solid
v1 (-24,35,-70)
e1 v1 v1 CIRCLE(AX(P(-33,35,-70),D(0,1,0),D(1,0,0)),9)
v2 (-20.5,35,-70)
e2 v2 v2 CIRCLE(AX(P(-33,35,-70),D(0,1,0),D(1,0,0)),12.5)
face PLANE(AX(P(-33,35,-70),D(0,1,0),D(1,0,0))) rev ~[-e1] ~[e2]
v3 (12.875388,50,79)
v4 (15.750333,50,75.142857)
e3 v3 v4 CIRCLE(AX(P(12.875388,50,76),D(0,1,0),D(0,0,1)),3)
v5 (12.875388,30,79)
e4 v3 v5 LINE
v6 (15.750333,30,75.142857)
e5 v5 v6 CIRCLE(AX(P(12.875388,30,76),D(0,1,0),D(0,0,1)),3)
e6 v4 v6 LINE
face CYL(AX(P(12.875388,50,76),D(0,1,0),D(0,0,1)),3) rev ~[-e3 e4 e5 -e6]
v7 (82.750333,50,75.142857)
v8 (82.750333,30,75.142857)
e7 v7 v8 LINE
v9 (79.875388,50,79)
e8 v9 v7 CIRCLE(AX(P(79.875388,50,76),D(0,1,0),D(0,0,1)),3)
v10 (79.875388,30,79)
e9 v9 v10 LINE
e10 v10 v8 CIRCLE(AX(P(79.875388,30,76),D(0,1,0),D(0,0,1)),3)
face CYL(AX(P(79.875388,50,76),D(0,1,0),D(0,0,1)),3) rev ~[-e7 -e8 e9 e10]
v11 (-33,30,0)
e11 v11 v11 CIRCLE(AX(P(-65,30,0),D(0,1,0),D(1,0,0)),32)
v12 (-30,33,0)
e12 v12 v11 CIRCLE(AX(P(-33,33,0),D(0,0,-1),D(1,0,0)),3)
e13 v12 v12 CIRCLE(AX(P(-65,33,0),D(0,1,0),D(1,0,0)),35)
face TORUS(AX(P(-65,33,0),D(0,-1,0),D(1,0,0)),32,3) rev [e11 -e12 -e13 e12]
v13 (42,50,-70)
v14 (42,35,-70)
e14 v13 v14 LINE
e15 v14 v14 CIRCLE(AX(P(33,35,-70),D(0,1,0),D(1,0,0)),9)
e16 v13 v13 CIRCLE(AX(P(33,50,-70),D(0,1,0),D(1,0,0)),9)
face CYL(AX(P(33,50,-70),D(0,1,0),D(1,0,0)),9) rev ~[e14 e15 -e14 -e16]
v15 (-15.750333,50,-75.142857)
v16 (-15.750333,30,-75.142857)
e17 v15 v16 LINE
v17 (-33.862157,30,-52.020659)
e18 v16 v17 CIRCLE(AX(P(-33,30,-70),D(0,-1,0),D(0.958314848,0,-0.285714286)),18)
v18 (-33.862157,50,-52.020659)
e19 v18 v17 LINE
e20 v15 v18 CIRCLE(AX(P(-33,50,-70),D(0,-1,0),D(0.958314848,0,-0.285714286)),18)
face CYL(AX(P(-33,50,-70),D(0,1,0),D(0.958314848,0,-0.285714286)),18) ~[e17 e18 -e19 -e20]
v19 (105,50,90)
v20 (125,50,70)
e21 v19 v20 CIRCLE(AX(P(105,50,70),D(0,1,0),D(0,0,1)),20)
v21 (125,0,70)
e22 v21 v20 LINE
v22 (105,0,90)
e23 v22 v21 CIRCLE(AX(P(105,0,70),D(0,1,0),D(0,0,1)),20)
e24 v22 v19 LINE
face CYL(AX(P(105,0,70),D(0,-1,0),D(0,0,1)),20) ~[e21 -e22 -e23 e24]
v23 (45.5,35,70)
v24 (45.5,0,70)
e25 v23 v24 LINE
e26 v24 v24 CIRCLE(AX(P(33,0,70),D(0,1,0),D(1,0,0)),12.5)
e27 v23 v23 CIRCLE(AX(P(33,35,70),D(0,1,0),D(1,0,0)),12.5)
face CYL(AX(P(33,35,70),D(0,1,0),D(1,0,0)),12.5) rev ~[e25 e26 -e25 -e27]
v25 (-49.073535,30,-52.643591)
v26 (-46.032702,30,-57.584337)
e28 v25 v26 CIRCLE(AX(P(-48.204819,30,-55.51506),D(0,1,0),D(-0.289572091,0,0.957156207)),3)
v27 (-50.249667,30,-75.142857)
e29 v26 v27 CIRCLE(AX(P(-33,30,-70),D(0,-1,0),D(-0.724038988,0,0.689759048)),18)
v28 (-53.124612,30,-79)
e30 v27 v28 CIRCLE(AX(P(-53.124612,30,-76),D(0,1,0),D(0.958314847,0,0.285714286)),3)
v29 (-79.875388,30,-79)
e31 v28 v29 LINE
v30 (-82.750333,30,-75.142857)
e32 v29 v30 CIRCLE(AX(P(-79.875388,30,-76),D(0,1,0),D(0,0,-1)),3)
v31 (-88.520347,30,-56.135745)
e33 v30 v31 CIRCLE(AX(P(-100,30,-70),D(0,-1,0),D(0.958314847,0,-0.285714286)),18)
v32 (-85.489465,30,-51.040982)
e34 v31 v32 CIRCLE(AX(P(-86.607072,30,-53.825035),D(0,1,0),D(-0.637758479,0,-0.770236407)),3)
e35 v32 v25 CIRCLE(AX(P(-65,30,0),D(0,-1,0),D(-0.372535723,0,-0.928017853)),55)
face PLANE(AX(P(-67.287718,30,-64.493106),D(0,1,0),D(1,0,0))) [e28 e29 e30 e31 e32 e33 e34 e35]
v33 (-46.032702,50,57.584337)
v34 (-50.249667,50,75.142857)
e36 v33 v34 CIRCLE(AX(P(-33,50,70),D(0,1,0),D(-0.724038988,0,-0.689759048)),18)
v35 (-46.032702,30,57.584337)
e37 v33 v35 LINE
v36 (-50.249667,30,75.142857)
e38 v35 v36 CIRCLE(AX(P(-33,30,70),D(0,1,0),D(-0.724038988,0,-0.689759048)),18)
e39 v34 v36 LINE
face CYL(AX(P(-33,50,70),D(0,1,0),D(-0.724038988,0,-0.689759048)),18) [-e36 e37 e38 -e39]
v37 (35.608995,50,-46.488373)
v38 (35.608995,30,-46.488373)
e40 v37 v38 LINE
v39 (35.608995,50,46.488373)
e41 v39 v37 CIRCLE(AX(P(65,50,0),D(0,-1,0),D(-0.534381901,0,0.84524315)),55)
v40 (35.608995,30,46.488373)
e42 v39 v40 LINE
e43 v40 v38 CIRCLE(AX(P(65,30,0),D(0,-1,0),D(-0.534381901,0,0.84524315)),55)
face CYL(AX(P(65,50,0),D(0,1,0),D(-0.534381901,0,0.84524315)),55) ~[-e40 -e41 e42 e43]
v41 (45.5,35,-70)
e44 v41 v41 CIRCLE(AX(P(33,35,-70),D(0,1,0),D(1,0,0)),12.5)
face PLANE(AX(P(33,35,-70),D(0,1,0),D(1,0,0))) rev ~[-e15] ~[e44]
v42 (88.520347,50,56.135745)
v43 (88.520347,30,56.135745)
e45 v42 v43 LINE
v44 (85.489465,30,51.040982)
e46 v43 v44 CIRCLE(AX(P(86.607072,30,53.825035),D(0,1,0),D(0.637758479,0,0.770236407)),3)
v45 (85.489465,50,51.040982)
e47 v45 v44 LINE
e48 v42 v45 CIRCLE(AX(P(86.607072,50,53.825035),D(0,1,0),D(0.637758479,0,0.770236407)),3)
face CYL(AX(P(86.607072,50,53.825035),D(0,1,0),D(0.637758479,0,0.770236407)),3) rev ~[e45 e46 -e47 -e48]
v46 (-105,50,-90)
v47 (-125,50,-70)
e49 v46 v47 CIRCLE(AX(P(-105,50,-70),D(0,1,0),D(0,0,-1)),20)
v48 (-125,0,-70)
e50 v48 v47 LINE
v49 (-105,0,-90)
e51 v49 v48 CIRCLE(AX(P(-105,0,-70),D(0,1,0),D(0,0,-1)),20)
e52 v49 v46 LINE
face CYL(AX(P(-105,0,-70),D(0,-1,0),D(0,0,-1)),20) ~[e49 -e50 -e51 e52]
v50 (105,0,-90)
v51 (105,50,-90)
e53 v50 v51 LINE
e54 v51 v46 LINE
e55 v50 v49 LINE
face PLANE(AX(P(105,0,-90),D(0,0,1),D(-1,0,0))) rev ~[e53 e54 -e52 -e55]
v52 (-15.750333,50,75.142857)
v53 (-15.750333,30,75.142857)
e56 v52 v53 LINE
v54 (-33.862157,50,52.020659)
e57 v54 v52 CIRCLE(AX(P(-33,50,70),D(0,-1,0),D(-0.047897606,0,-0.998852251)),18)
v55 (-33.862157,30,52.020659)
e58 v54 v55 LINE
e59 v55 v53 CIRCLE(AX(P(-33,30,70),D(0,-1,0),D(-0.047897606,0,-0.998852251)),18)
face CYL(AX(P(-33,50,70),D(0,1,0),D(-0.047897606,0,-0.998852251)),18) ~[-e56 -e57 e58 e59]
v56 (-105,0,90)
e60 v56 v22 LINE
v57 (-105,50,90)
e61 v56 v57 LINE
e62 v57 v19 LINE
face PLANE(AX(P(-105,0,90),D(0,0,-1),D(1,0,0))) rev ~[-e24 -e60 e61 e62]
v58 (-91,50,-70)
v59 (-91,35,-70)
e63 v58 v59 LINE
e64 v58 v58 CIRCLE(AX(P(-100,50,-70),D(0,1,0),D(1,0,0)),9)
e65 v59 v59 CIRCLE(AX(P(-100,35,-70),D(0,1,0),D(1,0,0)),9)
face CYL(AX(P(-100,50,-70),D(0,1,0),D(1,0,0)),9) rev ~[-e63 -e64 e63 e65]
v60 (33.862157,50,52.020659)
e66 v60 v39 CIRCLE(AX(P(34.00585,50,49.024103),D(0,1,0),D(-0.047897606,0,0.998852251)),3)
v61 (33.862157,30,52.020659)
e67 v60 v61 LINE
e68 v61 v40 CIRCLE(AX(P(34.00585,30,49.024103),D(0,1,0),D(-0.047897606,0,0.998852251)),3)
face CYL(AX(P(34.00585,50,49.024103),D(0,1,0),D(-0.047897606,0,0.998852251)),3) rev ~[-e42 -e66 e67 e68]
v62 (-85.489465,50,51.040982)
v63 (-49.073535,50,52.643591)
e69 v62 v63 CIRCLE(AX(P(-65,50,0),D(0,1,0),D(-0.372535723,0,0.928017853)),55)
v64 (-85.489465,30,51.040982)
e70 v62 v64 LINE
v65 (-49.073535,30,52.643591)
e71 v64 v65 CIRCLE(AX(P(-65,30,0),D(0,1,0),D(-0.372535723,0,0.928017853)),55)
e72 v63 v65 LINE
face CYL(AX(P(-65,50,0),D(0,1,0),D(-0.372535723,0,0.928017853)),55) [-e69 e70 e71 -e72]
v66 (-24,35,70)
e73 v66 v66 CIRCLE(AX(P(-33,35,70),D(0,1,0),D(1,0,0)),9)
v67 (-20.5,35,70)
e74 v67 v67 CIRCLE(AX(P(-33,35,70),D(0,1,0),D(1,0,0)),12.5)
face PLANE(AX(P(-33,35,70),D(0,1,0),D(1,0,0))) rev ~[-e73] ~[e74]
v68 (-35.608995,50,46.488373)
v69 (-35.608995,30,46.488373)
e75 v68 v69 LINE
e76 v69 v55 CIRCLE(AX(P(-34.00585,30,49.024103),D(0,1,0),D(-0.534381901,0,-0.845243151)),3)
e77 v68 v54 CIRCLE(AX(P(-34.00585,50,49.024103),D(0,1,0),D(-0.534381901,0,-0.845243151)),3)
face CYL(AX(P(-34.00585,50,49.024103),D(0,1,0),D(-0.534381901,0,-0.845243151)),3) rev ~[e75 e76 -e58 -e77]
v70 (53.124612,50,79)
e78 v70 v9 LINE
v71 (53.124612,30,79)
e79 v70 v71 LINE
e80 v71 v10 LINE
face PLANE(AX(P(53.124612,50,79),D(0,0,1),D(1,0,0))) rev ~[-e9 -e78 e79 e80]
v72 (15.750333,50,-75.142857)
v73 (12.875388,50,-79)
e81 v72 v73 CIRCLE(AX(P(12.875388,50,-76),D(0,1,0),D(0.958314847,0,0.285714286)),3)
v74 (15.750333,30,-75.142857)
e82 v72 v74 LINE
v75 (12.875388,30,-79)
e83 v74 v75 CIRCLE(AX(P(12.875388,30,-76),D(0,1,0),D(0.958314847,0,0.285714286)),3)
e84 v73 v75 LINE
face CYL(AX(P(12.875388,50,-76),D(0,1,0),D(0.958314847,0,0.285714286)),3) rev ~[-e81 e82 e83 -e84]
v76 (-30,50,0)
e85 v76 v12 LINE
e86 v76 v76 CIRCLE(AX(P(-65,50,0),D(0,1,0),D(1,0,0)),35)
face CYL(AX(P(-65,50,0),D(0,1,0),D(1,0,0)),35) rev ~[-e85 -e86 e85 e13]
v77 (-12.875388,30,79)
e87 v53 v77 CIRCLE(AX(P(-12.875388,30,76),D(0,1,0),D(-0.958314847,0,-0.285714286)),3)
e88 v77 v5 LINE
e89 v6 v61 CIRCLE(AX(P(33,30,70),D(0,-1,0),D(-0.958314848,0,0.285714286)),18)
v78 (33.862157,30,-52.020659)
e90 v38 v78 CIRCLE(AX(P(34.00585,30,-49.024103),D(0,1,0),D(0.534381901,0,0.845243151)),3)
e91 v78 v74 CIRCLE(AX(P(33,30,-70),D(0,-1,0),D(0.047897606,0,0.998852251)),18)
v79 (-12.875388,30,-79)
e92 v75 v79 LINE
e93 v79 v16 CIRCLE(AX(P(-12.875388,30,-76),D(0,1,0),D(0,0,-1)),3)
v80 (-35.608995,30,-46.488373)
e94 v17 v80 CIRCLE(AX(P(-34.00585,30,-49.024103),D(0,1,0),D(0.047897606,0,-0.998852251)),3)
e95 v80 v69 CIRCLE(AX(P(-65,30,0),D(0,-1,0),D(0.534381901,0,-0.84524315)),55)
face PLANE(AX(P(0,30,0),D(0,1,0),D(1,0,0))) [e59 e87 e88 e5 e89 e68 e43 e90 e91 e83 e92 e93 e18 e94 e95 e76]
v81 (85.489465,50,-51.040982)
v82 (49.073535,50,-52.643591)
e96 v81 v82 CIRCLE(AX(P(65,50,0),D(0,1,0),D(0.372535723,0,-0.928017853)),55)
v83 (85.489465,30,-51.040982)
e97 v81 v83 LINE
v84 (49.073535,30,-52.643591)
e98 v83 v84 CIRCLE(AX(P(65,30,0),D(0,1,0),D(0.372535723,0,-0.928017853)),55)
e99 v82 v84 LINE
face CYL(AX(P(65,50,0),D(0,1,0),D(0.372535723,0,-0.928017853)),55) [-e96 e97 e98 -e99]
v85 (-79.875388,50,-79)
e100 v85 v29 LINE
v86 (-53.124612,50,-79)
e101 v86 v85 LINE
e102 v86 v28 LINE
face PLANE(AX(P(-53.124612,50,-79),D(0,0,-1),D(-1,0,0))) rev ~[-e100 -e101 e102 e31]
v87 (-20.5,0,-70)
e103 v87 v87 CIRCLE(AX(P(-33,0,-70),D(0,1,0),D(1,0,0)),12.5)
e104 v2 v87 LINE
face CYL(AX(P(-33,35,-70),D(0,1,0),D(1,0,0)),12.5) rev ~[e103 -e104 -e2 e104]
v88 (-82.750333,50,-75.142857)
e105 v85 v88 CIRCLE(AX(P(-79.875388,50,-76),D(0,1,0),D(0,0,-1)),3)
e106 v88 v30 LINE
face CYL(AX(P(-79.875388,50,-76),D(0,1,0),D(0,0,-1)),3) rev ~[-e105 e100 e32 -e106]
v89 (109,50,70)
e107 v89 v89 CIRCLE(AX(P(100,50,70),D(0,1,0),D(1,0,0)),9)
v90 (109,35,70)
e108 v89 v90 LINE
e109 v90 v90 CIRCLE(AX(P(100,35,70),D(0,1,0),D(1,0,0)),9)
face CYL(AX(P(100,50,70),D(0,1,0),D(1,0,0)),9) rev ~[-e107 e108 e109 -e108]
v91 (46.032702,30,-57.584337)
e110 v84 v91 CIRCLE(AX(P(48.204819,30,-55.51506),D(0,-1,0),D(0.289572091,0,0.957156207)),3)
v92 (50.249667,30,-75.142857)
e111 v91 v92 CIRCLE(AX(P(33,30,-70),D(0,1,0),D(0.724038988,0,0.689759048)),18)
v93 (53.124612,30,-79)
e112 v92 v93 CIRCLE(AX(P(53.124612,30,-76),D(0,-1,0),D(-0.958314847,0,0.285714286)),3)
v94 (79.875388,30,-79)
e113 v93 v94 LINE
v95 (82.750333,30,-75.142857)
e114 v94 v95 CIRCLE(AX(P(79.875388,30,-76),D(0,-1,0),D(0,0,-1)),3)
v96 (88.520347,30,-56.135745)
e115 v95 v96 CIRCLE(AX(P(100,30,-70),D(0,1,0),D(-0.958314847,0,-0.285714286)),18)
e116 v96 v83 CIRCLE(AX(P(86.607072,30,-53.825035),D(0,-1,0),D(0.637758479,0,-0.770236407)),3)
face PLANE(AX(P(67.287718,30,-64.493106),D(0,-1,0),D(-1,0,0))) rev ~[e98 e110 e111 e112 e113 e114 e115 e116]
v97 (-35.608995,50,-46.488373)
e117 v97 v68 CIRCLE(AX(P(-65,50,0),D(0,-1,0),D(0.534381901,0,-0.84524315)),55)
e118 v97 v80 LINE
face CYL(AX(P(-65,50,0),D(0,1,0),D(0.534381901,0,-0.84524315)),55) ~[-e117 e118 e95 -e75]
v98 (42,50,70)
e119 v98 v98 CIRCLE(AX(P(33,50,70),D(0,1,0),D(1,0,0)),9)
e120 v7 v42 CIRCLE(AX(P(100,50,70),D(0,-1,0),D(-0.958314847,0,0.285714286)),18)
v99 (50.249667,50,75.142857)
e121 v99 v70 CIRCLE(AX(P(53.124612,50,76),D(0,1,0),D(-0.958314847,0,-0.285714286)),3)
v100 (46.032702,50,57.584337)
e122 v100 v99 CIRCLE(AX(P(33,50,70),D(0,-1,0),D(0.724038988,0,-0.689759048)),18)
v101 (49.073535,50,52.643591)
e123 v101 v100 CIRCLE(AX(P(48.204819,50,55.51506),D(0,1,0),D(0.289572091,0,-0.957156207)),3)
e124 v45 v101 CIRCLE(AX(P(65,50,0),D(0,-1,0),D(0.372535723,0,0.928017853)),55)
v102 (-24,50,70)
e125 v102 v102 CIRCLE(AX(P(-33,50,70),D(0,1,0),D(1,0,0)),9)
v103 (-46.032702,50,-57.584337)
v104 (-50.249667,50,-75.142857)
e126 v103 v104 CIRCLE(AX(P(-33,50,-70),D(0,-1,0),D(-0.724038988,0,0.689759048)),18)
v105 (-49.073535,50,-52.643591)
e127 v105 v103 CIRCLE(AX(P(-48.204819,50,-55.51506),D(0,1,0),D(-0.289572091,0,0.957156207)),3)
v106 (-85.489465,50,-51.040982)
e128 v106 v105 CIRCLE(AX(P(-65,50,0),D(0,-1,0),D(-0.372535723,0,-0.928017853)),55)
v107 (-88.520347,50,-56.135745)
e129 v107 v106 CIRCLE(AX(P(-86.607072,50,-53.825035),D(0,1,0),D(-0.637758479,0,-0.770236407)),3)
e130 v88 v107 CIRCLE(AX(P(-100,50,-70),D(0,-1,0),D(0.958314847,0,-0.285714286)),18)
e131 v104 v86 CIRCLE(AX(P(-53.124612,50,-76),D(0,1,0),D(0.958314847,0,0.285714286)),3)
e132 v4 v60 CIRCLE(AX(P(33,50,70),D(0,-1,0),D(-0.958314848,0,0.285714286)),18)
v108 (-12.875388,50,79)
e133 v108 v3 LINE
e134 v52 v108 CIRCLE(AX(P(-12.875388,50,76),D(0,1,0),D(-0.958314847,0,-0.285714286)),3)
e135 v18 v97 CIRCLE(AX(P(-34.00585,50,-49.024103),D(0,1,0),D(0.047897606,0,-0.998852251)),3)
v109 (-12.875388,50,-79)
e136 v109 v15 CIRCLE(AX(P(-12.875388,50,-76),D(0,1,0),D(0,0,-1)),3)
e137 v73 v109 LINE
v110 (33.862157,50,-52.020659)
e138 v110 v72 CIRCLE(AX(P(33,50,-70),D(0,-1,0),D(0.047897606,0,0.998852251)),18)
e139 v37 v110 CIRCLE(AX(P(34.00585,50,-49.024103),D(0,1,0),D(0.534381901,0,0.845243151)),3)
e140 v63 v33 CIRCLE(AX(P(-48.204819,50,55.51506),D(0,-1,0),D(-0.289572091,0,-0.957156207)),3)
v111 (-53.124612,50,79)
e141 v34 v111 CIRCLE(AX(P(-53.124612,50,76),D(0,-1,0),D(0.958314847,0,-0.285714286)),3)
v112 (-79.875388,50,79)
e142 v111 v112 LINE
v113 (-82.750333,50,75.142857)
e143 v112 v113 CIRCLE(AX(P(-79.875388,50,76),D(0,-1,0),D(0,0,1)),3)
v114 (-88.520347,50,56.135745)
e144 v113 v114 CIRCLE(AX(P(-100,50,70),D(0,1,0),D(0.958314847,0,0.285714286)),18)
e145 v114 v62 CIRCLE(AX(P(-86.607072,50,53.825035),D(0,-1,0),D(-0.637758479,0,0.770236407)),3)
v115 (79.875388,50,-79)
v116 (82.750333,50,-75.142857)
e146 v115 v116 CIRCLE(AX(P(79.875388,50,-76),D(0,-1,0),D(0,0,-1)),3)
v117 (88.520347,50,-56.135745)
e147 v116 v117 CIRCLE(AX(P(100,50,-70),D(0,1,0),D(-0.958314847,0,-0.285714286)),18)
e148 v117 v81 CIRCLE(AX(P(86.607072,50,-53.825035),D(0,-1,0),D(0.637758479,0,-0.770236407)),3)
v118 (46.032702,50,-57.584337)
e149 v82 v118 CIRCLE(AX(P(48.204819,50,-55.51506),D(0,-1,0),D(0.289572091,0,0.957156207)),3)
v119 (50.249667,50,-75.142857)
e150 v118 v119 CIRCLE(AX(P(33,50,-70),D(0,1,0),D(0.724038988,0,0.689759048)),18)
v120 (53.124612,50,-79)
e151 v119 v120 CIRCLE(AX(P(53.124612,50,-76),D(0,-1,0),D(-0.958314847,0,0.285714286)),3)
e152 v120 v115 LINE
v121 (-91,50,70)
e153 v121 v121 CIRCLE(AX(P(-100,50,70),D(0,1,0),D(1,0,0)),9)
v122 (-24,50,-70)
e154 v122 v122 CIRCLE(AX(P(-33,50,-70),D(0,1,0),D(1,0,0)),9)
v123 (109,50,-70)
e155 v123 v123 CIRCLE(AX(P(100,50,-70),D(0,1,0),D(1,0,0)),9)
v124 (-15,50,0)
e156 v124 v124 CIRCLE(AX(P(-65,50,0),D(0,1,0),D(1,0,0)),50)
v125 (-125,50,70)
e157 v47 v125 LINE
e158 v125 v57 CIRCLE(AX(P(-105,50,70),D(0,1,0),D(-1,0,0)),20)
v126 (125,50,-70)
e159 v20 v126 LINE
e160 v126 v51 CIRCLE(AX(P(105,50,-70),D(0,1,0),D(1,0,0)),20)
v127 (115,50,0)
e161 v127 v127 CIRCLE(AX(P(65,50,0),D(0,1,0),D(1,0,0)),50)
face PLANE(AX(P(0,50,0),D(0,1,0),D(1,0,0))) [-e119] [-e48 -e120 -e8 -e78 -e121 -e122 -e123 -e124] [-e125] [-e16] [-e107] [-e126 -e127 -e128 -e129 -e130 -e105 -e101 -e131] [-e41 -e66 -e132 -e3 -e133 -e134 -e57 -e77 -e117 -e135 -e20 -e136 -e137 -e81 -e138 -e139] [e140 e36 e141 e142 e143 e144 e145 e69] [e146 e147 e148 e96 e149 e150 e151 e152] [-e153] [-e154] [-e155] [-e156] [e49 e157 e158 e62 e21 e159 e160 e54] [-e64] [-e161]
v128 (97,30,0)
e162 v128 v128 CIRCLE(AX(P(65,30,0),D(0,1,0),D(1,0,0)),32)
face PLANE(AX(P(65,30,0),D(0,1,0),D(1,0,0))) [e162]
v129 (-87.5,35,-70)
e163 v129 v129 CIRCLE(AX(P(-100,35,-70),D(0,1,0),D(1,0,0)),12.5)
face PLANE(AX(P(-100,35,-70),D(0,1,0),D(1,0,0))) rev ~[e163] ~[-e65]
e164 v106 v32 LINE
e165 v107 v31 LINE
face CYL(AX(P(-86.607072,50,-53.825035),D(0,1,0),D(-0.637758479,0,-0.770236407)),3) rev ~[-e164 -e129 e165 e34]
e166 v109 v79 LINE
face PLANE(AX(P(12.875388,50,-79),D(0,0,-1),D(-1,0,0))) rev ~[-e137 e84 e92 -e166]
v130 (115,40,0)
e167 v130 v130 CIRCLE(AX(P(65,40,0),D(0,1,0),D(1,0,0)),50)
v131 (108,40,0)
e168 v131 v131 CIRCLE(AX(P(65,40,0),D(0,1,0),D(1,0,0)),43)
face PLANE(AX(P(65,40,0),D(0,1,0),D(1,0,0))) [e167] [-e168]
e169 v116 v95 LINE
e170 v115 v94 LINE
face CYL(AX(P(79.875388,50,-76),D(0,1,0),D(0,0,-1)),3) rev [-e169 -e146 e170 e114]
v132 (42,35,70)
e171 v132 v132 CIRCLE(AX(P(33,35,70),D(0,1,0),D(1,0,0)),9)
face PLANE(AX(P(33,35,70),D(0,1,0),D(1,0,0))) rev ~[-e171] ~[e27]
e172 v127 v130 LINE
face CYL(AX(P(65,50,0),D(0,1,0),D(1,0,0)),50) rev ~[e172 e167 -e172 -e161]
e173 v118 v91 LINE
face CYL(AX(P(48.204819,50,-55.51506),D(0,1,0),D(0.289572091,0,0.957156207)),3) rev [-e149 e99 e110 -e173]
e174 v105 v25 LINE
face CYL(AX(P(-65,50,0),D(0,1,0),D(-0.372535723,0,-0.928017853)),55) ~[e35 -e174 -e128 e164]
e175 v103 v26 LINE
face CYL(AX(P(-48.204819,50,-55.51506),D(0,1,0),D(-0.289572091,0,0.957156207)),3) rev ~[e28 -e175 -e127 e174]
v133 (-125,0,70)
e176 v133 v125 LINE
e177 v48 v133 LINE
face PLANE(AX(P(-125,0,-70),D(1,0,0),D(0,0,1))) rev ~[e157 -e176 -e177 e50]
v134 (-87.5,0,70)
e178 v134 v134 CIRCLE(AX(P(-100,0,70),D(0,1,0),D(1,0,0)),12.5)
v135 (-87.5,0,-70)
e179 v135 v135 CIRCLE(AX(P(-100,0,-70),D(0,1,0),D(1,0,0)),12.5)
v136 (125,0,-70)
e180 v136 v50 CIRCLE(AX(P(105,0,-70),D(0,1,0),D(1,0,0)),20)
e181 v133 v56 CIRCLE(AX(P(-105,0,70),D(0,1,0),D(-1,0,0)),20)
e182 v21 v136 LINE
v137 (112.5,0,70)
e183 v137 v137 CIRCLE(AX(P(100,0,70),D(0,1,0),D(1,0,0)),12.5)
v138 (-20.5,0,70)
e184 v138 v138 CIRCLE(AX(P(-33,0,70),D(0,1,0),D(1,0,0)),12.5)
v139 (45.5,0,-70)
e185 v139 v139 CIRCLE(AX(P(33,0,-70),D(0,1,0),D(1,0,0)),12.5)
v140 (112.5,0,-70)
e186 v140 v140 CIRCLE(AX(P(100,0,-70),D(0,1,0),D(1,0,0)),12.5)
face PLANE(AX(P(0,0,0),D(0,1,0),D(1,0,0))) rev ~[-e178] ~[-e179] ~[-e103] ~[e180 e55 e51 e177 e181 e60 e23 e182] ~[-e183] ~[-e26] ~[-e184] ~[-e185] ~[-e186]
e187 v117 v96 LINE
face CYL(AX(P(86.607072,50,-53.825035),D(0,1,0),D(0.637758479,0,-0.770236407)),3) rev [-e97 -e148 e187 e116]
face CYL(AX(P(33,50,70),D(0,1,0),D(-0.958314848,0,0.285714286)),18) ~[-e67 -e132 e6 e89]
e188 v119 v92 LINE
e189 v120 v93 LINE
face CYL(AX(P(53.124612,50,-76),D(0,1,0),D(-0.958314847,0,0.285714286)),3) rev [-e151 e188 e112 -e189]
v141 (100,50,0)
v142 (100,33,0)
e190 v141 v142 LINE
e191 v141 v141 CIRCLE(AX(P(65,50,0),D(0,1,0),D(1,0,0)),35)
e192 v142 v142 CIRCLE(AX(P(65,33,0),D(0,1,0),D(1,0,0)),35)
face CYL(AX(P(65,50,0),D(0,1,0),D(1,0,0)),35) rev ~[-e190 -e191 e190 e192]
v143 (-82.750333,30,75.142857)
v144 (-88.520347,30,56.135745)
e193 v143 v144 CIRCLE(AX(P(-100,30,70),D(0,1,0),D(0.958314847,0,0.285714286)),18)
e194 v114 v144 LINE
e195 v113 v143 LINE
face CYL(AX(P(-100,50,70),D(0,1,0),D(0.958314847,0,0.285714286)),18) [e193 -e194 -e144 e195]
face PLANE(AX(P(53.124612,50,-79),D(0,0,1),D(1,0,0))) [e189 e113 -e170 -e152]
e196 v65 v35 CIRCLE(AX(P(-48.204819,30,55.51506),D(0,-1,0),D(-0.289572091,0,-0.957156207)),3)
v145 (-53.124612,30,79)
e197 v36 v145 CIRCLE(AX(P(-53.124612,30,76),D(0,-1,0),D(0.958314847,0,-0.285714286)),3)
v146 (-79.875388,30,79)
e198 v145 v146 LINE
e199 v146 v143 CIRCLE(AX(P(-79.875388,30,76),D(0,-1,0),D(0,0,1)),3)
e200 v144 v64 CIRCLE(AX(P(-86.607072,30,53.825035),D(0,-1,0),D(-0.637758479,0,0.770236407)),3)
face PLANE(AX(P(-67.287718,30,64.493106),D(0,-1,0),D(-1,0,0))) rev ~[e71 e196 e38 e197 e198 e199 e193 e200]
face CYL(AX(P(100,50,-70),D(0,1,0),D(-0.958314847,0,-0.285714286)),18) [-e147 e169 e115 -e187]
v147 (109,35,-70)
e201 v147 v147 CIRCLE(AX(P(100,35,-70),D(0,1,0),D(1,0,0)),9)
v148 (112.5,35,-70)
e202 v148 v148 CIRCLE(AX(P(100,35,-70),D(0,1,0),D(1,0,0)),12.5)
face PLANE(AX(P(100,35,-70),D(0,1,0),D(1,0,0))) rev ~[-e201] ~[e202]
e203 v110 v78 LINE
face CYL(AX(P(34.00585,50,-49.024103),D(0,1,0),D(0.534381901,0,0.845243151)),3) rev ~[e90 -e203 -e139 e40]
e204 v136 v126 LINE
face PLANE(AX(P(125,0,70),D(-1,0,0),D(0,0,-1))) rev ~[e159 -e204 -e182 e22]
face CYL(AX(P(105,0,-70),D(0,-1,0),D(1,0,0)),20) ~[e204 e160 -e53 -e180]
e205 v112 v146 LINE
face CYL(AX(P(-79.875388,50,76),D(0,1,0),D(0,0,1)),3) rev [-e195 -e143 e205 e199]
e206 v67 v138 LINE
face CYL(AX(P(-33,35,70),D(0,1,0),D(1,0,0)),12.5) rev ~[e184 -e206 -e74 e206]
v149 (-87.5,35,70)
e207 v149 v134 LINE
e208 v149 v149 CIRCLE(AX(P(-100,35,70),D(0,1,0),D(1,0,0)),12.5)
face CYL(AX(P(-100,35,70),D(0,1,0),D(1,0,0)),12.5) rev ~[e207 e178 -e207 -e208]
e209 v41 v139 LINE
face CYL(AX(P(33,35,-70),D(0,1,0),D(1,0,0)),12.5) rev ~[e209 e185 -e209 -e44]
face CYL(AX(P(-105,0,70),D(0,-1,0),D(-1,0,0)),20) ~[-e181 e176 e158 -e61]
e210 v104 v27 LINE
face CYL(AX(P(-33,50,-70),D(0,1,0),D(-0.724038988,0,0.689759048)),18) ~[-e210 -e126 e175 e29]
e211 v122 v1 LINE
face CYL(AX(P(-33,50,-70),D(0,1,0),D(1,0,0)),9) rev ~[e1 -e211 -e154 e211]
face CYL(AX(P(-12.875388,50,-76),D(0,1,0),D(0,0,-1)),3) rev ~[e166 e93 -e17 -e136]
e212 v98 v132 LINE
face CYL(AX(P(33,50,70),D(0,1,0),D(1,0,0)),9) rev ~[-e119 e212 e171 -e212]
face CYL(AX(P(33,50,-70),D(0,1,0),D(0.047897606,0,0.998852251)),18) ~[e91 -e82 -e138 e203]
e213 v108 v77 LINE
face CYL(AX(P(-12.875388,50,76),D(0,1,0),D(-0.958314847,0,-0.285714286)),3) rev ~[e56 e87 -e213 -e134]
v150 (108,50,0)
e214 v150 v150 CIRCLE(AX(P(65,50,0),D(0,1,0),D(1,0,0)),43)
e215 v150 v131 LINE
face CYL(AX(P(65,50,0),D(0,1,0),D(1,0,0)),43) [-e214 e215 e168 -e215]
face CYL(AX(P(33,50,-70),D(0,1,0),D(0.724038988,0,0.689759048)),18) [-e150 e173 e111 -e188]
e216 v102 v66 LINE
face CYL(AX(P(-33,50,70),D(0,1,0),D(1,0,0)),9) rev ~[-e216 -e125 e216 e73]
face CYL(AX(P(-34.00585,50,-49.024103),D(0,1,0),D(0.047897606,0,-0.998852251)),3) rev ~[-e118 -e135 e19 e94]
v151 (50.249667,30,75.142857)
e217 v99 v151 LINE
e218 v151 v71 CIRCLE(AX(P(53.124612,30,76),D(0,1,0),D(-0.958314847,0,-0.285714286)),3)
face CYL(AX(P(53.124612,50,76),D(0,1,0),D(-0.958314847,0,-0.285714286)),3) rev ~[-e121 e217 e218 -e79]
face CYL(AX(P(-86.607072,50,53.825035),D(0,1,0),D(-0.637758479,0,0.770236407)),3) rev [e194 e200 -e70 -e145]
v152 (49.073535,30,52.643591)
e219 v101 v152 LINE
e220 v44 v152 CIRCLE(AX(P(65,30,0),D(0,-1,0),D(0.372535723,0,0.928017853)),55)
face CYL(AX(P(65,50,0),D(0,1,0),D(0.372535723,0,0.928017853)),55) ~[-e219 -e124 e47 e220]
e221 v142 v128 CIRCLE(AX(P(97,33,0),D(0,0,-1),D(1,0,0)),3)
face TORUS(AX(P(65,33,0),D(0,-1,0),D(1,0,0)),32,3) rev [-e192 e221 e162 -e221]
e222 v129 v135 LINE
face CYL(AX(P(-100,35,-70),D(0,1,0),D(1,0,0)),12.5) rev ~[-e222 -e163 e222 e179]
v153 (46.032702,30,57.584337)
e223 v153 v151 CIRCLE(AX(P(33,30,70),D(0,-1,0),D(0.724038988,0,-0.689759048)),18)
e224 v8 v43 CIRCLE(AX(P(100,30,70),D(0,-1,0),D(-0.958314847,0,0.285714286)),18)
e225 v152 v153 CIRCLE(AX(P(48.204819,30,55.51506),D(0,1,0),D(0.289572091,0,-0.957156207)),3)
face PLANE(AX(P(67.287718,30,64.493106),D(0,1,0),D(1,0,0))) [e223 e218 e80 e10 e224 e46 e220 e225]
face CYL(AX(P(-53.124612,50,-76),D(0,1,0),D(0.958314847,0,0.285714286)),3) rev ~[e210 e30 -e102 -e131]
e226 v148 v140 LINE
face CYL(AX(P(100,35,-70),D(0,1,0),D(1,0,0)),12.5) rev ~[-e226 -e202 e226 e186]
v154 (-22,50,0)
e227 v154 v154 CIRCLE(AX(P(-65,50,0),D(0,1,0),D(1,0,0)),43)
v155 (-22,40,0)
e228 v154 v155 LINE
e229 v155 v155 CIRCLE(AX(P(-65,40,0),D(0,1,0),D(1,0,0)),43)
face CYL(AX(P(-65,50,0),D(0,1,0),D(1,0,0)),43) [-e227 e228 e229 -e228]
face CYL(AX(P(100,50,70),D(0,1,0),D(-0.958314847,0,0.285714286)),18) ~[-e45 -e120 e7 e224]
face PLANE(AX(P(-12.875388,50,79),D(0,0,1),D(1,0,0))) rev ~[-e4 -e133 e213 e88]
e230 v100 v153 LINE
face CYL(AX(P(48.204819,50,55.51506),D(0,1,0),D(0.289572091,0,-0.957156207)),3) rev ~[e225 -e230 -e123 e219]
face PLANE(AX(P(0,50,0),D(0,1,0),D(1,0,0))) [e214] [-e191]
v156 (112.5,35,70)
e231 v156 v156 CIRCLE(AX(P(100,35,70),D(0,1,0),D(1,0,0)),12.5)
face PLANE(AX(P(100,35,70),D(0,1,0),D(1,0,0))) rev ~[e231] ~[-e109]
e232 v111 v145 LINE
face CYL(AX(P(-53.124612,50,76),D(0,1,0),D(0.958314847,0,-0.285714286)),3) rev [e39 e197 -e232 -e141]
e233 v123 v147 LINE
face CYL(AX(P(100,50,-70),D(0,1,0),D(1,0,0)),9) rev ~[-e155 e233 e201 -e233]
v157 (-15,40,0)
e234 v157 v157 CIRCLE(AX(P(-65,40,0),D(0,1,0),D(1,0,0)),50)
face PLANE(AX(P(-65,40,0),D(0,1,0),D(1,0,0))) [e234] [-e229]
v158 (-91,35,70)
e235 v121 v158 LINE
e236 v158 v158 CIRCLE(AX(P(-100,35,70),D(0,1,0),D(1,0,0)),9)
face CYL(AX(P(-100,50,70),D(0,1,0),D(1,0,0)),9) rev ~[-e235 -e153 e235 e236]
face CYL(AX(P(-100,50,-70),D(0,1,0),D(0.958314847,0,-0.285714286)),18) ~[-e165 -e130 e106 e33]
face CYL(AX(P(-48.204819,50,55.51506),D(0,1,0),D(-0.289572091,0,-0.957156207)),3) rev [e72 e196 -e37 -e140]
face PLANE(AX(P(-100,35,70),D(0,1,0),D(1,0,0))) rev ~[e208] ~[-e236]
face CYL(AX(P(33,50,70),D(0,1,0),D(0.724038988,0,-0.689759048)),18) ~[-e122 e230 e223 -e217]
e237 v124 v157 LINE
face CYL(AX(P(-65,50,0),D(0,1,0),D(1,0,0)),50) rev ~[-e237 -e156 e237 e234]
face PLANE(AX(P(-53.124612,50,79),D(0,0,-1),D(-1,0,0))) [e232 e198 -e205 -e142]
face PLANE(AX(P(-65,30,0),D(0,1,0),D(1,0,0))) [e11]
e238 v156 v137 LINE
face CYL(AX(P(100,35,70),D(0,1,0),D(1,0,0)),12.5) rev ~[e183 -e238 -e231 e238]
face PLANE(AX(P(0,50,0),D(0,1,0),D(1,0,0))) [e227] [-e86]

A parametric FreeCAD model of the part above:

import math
import FreeCAD as App
import Part
import Sketcher

V = App.Vector


def edges_at(feature, points):
    """Names of the edges that pass closest to the given points."""
    edges = feature.Shape.Edges
    near = lambda p: min(range(len(edges)), key=lambda i: edges[i].distToShape(Part.Vertex(*p))[0])
    return sorted({f"Edge{near(p) + 1}" for p in points})

doc = App.newDocument("Part")
body = doc.addObject("PartDesign::Body", "Body")

sketch1 = body.newObject("Sketcher::SketchObject", "Sketch")
sketch1.AttachmentSupport = (doc.getObject("XZ_Plane"), [""])
sketch1.MapMode = "FlatFace"
sketch1.addGeometry([
    Part.LineSegment(V(-105, 90, 0), V(105, 90, 0)),
    Part.ArcOfCircle(Part.Circle(V(105, 70, 0), V(0, 0, 1), 20), math.radians(0), math.radians(90)),
    Part.LineSegment(V(125, 70, 0), V(125, -70, 0)),
    Part.ArcOfCircle(Part.Circle(V(105, -70, 0), V(0, 0, 1), 20), math.radians(-90), math.radians(0)),
    Part.LineSegment(V(105, -90, 0), V(-105, -90, 0)),
    Part.ArcOfCircle(Part.Circle(V(-105, -70, 0), V(0, 0, 1), 20), math.radians(180), math.radians(270)),
    Part.LineSegment(V(-125, -70, 0), V(-125, 70, 0)),
    Part.ArcOfCircle(Part.Circle(V(-105, 70, 0), V(0, 0, 1), 20), math.radians(90), math.radians(180)),
], False)
sketch1.addConstraint([
    Sketcher.Constraint("Tangent", 0, 2, 1, 2),
    Sketcher.Constraint("Tangent", 1, 1, 2, 1),
    Sketcher.Constraint("Tangent", 2, 2, 3, 2),
    Sketcher.Constraint("Tangent", 3, 1, 4, 1),
    Sketcher.Constraint("Tangent", 4, 2, 5, 2),
    Sketcher.Constraint("Tangent", 5, 1, 6, 1),
    Sketcher.Constraint("Tangent", 6, 2, 7, 2),
    Sketcher.Constraint("Tangent", 7, 1, 0, 1),
    Sketcher.Constraint("Horizontal", 0),
    Sketcher.Constraint("Vertical", 2),
    Sketcher.Constraint("Horizontal", 4),
    Sketcher.Constraint("Vertical", 6),
    Sketcher.Constraint("Equal", 1, 3),
    Sketcher.Constraint("Equal", 3, 5),
    Sketcher.Constraint("Equal", 5, 7),
    Sketcher.Constraint("Symmetric", 1, 3, 5, 3, -1, 1),
    Sketcher.Constraint("Radius", 1, 20.0),
    Sketcher.Constraint("DistanceX", 0, 1, 0, 2, 210.0),
    Sketcher.Constraint("DistanceY", 2, 2, 2, 1, 140.0),
])
pad1 = body.newObject("PartDesign::Pad", "Pad")
pad1.Profile = sketch1
pad1.Length = 50
pad1.Reversed = True

sketch2 = body.newObject("Sketcher::SketchObject", "Sketch001")
sketch2.AttachmentSupport = (doc.getObject("XZ_Plane"), [""])
sketch2.MapMode = "FlatFace"
sketch2.AttachmentOffset = App.Placement(V(0, 0, -50), App.Rotation())
sketch2.addGeometry([
    Part.Circle(V(-100, 70, 0), V(0, 0, 1), 9),
    Part.Circle(V(-33, 70, 0), V(0, 0, 1), 9),
    Part.Circle(V(33, 70, 0), V(0, 0, 1), 9),
    Part.Circle(V(100, 70, 0), V(0, 0, 1), 9),
    Part.Circle(V(100, -70, 0), V(0, 0, 1), 9),
    Part.Circle(V(33, -70, 0), V(0, 0, 1), 9),
    Part.Circle(V(-33, -70, 0), V(0, 0, 1), 9),
    Part.Circle(V(-100, -70, 0), V(0, 0, 1), 9),
], False)
sketch2.addConstraint([
    Sketcher.Constraint("Equal", 0, 1),
    Sketcher.Constraint("Equal", 1, 2),
    Sketcher.Constraint("Equal", 2, 3),
    Sketcher.Constraint("Equal", 3, 4),
    Sketcher.Constraint("Equal", 4, 5),
    Sketcher.Constraint("Equal", 5, 6),
    Sketcher.Constraint("Equal", 6, 7),
    Sketcher.Constraint("Symmetric", 0, 3, 4, 3, -1, 1),
    Sketcher.Constraint("Symmetric", 1, 3, 5, 3, -1, 1),
    Sketcher.Constraint("Symmetric", 2, 3, 6, 3, -1, 1),
    Sketcher.Constraint("Symmetric", 3, 3, 7, 3, -1, 1),
    Sketcher.Constraint("Symmetric", 1, 3, 2, 3, -2),
    Sketcher.Constraint("Symmetric", 0, 3, 3, 3, -2),
    Sketcher.Constraint("Horizontal", 0, 3, 1, 3),
    Sketcher.Constraint("Diameter", 0, 18.0),
    Sketcher.Constraint("DistanceX", 0, 3, -1, 1, 100.0),
    Sketcher.Constraint("DistanceY", -1, 1, 0, 3, 70.0),
    Sketcher.Constraint("DistanceX", 1, 3, -1, 1, 33.0),
])
pocket1 = body.newObject("PartDesign::Pocket", "Pocket")
pocket1.Profile = sketch2
pocket1.Length = 50
pocket1.Reversed = True

sketch3 = body.newObject("Sketcher::SketchObject", "Sketch002")
sketch3.AttachmentSupport = (doc.getObject("XZ_Plane"), [""])
sketch3.MapMode = "FlatFace"
sketch3.AttachmentOffset = App.Placement(V(0, 0, -35), App.Rotation())
sketch3.addGeometry([
    Part.Circle(V(-100, 70, 0), V(0, 0, 1), 12),
    Part.Circle(V(-33, 70, 0), V(0, 0, 1), 12),
    Part.Circle(V(33, 70, 0), V(0, 0, 1), 12),
    Part.Circle(V(100, 70, 0), V(0, 0, 1), 12),
    Part.Circle(V(100, -70, 0), V(0, 0, 1), 12),
    Part.Circle(V(33, -70, 0), V(0, 0, 1), 12),
    Part.Circle(V(-33, -70, 0), V(0, 0, 1), 12),
    Part.Circle(V(-100, -70, 0), V(0, 0, 1), 12),
], False)
sketch3.addConstraint([
    Sketcher.Constraint("Equal", 0, 1),
    Sketcher.Constraint("Equal", 1, 2),
    Sketcher.Constraint("Equal", 2, 3),
    Sketcher.Constraint("Equal", 3, 4),
    Sketcher.Constraint("Equal", 4, 5),
    Sketcher.Constraint("Equal", 5, 6),
    Sketcher.Constraint("Equal", 6, 7),
    Sketcher.Constraint("Symmetric", 0, 3, 4, 3, -1, 1),
    Sketcher.Constraint("Symmetric", 1, 3, 5, 3, -1, 1),
    Sketcher.Constraint("Symmetric", 2, 3, 6, 3, -1, 1),
    Sketcher.Constraint("Symmetric", 3, 3, 7, 3, -1, 1),
    Sketcher.Constraint("Symmetric", 1, 3, 2, 3, -2),
    Sketcher.Constraint("Symmetric", 0, 3, 3, 3, -2),
    Sketcher.Constraint("Horizontal", 0, 3, 1, 3),
    Sketcher.Constraint("Diameter", 0, 25.0),
    Sketcher.Constraint("DistanceX", 0, 3, -1, 1, 100.0),
    Sketcher.Constraint("DistanceY", -1, 1, 0, 3, 70.0),
    Sketcher.Constraint("DistanceX", 1, 3, -1, 1, 33.0),
])
pocket2 = body.newObject("PartDesign::Pocket", "Pocket001")
pocket2.Profile = sketch3
pocket2.Length = 35
pocket2.Reversed = True

sketch4 = body.newObject("Sketcher::SketchObject", "Sketch003")
sketch4.AttachmentSupport = (doc.getObject("XZ_Plane"), [""])
sketch4.MapMode = "FlatFace"
sketch4.AttachmentOffset = App.Placement(V(0, 0, -50), App.Rotation())
sketch4.addGeometry([
    Part.Circle(V(-65, 0, 0), V(0, 0, 1), 35),
    Part.Circle(V(65, 0, 0), V(0, 0, 1), 35),
], False)
sketch4.addConstraint([
    Sketcher.Constraint("Equal", 0, 1),
    Sketcher.Constraint("Symmetric", 0, 3, 1, 3, -1, 1),
    Sketcher.Constraint("PointOnObject", 0, 3, -1),
    Sketcher.Constraint("Diameter", 0, 70.0),
    Sketcher.Constraint("DistanceX", 0, 3, -1, 1, 65.0),
])
pocket3 = body.newObject("PartDesign::Pocket", "Pocket002")
pocket3.Profile = sketch4
pocket3.Length = 20
pocket3.Reversed = True
doc.recompute()

fillet = body.newObject("PartDesign::Fillet", "Fillet")
fillet.Base = (pocket3, edges_at(pocket3, [(-100, 30, 0), (30, 30, 0)]))
fillet.Radius = 3

sketch5 = body.newObject("Sketcher::SketchObject", "Sketch004")
sketch5.AttachmentSupport = (doc.getObject("XZ_Plane"), [""])
sketch5.MapMode = "FlatFace"
sketch5.AttachmentOffset = App.Placement(V(0, 0, -50), App.Rotation())
sketch5.addGeometry([
    Part.Circle(V(-65, 0, 0), V(0, 0, 1), 50),
    Part.Circle(V(-65, 0, 0), V(0, 0, 1), 43),
    Part.Circle(V(65, 0, 0), V(0, 0, 1), 50),
    Part.Circle(V(65, 0, 0), V(0, 0, 1), 43),
], False)
sketch5.addConstraint([
    Sketcher.Constraint("Coincident", 1, 3, 0, 3),
    Sketcher.Constraint("Coincident", 3, 3, 2, 3),
    Sketcher.Constraint("Equal", 0, 2),
    Sketcher.Constraint("Equal", 1, 3),
    Sketcher.Constraint("Symmetric", 0, 3, 2, 3, -1, 1),
    Sketcher.Constraint("PointOnObject", 0, 3, -1),
    Sketcher.Constraint("Diameter", 0, 100.0),
    Sketcher.Constraint("Diameter", 1, 86.0),
    Sketcher.Constraint("DistanceX", 0, 3, -1, 1, 65.0),
])
pocket4 = body.newObject("PartDesign::Pocket", "Pocket003")
pocket4.Profile = sketch5
pocket4.Length = 10
pocket4.Reversed = True

sketch6 = body.newObject("Sketcher::SketchObject", "Sketch005")
sketch6.AttachmentSupport = (doc.getObject("XZ_Plane"), [""])
sketch6.MapMode = "FlatFace"
sketch6.AttachmentOffset = App.Placement(V(0, 0, -50), App.Rotation())
sketch6.addGeometry([
    Part.LineSegment(V(-79.9, 79, 0), V(-53.1, 79, 0)),
    Part.ArcOfCircle(Part.Circle(V(-53.1, 76, 0), V(0, 0, 1), 3), math.radians(-17), math.radians(90)),
    Part.ArcOfCircle(Part.Circle(V(-33, 70, 0), V(0, 0, 1), 18), math.radians(163), math.radians(224)),
    Part.ArcOfCircle(Part.Circle(V(-48.2, 55.5, 0), V(0, 0, 1), 3), math.radians(-107), math.radians(44)),
    Part.ArcOfCircle(Part.Circle(V(-65, 0, 0), V(0, 0, 1), 55), math.radians(73), math.radians(112)),
    Part.ArcOfCircle(Part.Circle(V(-86.6, 53.8, 0), V(0, 0, 1), 3), math.radians(130), math.radians(292)),
    Part.ArcOfCircle(Part.Circle(V(-100, 70, 0), V(0, 0, 1), 18), math.radians(-50), math.radians(17)),
    Part.ArcOfCircle(Part.Circle(V(-79.9, 76, 0), V(0, 0, 1), 3), math.radians(90), math.radians(197)),
    Part.LineSegment(V(79.9, -79, 0), V(53.1, -79, 0)),
    Part.ArcOfCircle(Part.Circle(V(53.1, -76, 0), V(0, 0, 1), 3), math.radians(163), math.radians(270)),
    Part.ArcOfCircle(Part.Circle(V(33, -70, 0), V(0, 0, 1), 18), math.radians(-17), math.radians(44)),
    Part.ArcOfCircle(Part.Circle(V(48.2, -55.5, 0), V(0, 0, 1), 3), math.radians(73), math.radians(224)),
    Part.ArcOfCircle(Part.Circle(V(65, 0, 0), V(0, 0, 1), 55), math.radians(-107), math.radians(-68)),
    Part.ArcOfCircle(Part.Circle(V(86.6, -53.8, 0), V(0, 0, 1), 3), math.radians(-50), math.radians(112)),
    Part.ArcOfCircle(Part.Circle(V(100, -70, 0), V(0, 0, 1), 18), math.radians(130), math.radians(197)),
    Part.ArcOfCircle(Part.Circle(V(79.9, -76, 0), V(0, 0, 1), 3), math.radians(-90), math.radians(17)),
    Part.LineSegment(V(-53.1, -79, 0), V(-79.9, -79, 0)),
    Part.ArcOfCircle(Part.Circle(V(-79.9, -76, 0), V(0, 0, 1), 3), math.radians(163), math.radians(270)),
    Part.ArcOfCircle(Part.Circle(V(-100, -70, 0), V(0, 0, 1), 18), math.radians(-17), math.radians(50)),
    Part.ArcOfCircle(Part.Circle(V(-86.6, -53.8, 0), V(0, 0, 1), 3), math.radians(68), math.radians(230)),
    Part.ArcOfCircle(Part.Circle(V(-65, 0, 0), V(0, 0, 1), 55), math.radians(-112), math.radians(-73)),
    Part.ArcOfCircle(Part.Circle(V(-48.2, -55.5, 0), V(0, 0, 1), 3), math.radians(-44), math.radians(107)),
    Part.ArcOfCircle(Part.Circle(V(-33, -70, 0), V(0, 0, 1), 18), math.radians(136), math.radians(197)),
    Part.ArcOfCircle(Part.Circle(V(-53.1, -76, 0), V(0, 0, 1), 3), math.radians(-90), math.radians(17)),
    Part.LineSegment(V(-12.9, 79, 0), V(12.9, 79, 0)),
    Part.ArcOfCircle(Part.Circle(V(12.9, 76, 0), V(0, 0, 1), 3), math.radians(-17), math.radians(90)),
    Part.ArcOfCircle(Part.Circle(V(33, 70, 0), V(0, 0, 1), 18), math.radians(163), math.radians(273)),
    Part.ArcOfCircle(Part.Circle(V(34, 49, 0), V(0, 0, 1), 3), math.radians(-58), math.radians(93)),
    Part.ArcOfCircle(Part.Circle(V(65, 0, 0), V(0, 0, 1), 55), math.radians(122), math.radians(238)),
    Part.ArcOfCircle(Part.Circle(V(34, -49, 0), V(0, 0, 1), 3), math.radians(-93), math.radians(58)),
    Part.ArcOfCircle(Part.Circle(V(33, -70, 0), V(0, 0, 1), 18), math.radians(87), math.radians(197)),
    Part.ArcOfCircle(Part.Circle(V(12.9, -76, 0), V(0, 0, 1), 3), math.radians(-90), math.radians(17)),
    Part.LineSegment(V(12.9, -79, 0), V(-12.9, -79, 0)),
    Part.ArcOfCircle(Part.Circle(V(-12.9, -76, 0), V(0, 0, 1), 3), math.radians(163), math.radians(270)),
    Part.ArcOfCircle(Part.Circle(V(-33, -70, 0), V(0, 0, 1), 18), math.radians(-17), math.radians(93)),
    Part.ArcOfCircle(Part.Circle(V(-34, -49, 0), V(0, 0, 1), 3), math.radians(122), math.radians(273)),
    Part.ArcOfCircle(Part.Circle(V(-65, 0, 0), V(0, 0, 1), 55), math.radians(-58), math.radians(58)),
    Part.ArcOfCircle(Part.Circle(V(-34, 49, 0), V(0, 0, 1), 3), math.radians(87), math.radians(238)),
    Part.ArcOfCircle(Part.Circle(V(-33, 70, 0), V(0, 0, 1), 18), math.radians(-93), math.radians(17)),
    Part.ArcOfCircle(Part.Circle(V(-12.9, 76, 0), V(0, 0, 1), 3), math.radians(90), math.radians(197)),
    Part.LineSegment(V(53.1, 79, 0), V(79.9, 79, 0)),
    Part.ArcOfCircle(Part.Circle(V(79.9, 76, 0), V(0, 0, 1), 3), math.radians(-17), math.radians(90)),
    Part.ArcOfCircle(Part.Circle(V(100, 70, 0), V(0, 0, 1), 18), math.radians(163), math.radians(230)),
    Part.ArcOfCircle(Part.Circle(V(86.6, 53.8, 0), V(0, 0, 1), 3), math.radians(-112), math.radians(50)),
    Part.ArcOfCircle(Part.Circle(V(65, 0, 0), V(0, 0, 1), 55), math.radians(68), math.radians(107)),
    Part.ArcOfCircle(Part.Circle(V(48.2, 55.5, 0), V(0, 0, 1), 3), math.radians(136), math.radians(287)),
    Part.ArcOfCircle(Part.Circle(V(33, 70, 0), V(0, 0, 1), 18), math.radians(-44), math.radians(17)),
    Part.ArcOfCircle(Part.Circle(V(53.1, 76, 0), V(0, 0, 1), 3), math.radians(90), math.radians(197)),
], False)
sketch6.addConstraint([
    Sketcher.Constraint("Tangent", 0, 2, 1, 2),
    Sketcher.Constraint("Tangent", 1, 1, 2, 1),
    Sketcher.Constraint("Tangent", 2, 2, 3, 2),
    Sketcher.Constraint("Tangent", 3, 1, 4, 1),
    Sketcher.Constraint("Tangent", 4, 2, 5, 2),
    Sketcher.Constraint("Tangent", 5, 1, 6, 1),
    Sketcher.Constraint("Tangent", 6, 2, 7, 2),
    Sketcher.Constraint("Tangent", 7, 1, 0, 1),
    Sketcher.Constraint("Tangent", 8, 2, 9, 2),
    Sketcher.Constraint("Tangent", 9, 1, 10, 1),
    Sketcher.Constraint("Tangent", 10, 2, 11, 2),
    Sketcher.Constraint("Tangent", 11, 1, 12, 1),
    Sketcher.Constraint("Tangent", 12, 2, 13, 2),
    Sketcher.Constraint("Tangent", 13, 1, 14, 1),
    Sketcher.Constraint("Tangent", 14, 2, 15, 2),
    Sketcher.Constraint("Tangent", 15, 1, 8, 1),
    Sketcher.Constraint("Tangent", 16, 2, 17, 2),
    Sketcher.Constraint("Tangent", 17, 1, 18, 1),
    Sketcher.Constraint("Tangent", 18, 2, 19, 2),
    Sketcher.Constraint("Tangent", 19, 1, 20, 1),
    Sketcher.Constraint("Tangent", 20, 2, 21, 2),
    Sketcher.Constraint("Tangent", 21, 1, 22, 1),
    Sketcher.Constraint("Tangent", 22, 2, 23, 2),
    Sketcher.Constraint("Tangent", 23, 1, 16, 1),
    Sketcher.Constraint("Tangent", 24, 2, 25, 2),
    Sketcher.Constraint("Tangent", 25, 1, 26, 1),
    Sketcher.Constraint("Tangent", 26, 2, 27, 2),
    Sketcher.Constraint("Tangent", 27, 1, 28, 1),
    Sketcher.Constraint("Tangent", 28, 2, 29, 2),
    Sketcher.Constraint("Tangent", 29, 1, 30, 1),
    Sketcher.Constraint("Tangent", 30, 2, 31, 2),
    Sketcher.Constraint("Tangent", 31, 1, 32, 1),
    Sketcher.Constraint("Tangent", 32, 2, 33, 2),
    Sketcher.Constraint("Tangent", 33, 1, 34, 1),
    Sketcher.Constraint("Tangent", 34, 2, 35, 2),
    Sketcher.Constraint("Tangent", 35, 1, 36, 1),
    Sketcher.Constraint("Tangent", 36, 2, 37, 2),
    Sketcher.Constraint("Tangent", 37, 1, 38, 1),
    Sketcher.Constraint("Tangent", 38, 2, 39, 2),
    Sketcher.Constraint("Tangent", 39, 1, 24, 1),
    Sketcher.Constraint("Tangent", 40, 2, 41, 2),
    Sketcher.Constraint("Tangent", 41, 1, 42, 1),
    Sketcher.Constraint("Tangent", 42, 2, 43, 2),
    Sketcher.Constraint("Tangent", 43, 1, 44, 1),
    Sketcher.Constraint("Tangent", 44, 2, 45, 2),
    Sketcher.Constraint("Tangent", 45, 1, 46, 1),
    Sketcher.Constraint("Tangent", 46, 2, 47, 2),
    Sketcher.Constraint("Tangent", 47, 1, 40, 1),
    Sketcher.Constraint("Horizontal", 0),
    Sketcher.Constraint("Horizontal", 8),
    Sketcher.Constraint("Horizontal", 16),
    Sketcher.Constraint("Horizontal", 24),
    Sketcher.Constraint("Horizontal", 32),
    Sketcher.Constraint("Horizontal", 40),
    Sketcher.Constraint("Coincident", 20, 3, 4, 3),
    Sketcher.Constraint("Coincident", 28, 3, 12, 3),
    Sketcher.Constraint("Coincident", 30, 3, 10, 3),
    Sketcher.Constraint("Coincident", 34, 3, 22, 3),
    Sketcher.Constraint("Coincident", 36, 3, 4, 3),
    Sketcher.Constraint("Coincident", 38, 3, 2, 3),
    Sketcher.Constraint("Coincident", 44, 3, 12, 3),
    Sketcher.Constraint("Coincident", 46, 3, 26, 3),
    Sketcher.Constraint("Equal", 1, 3),
    Sketcher.Constraint("Equal", 3, 5),
    Sketcher.Constraint("Equal", 2, 6),
    Sketcher.Constraint("Equal", 5, 7),
    Sketcher.Constraint("Equal", 7, 9),
    Sketcher.Constraint("Equal", 6, 10),
    Sketcher.Constraint("Equal", 9, 11),
    Sketcher.Constraint("Equal", 4, 12),
    Sketcher.Constraint("Equal", 11, 13),
    Sketcher.Constraint("Equal", 10, 14),
    Sketcher.Constraint("Equal", 13, 15),
    Sketcher.Constraint("Equal", 15, 17),
    Sketcher.Constraint("Equal", 14, 18),
    Sketcher.Constraint("Equal", 17, 19),
    Sketcher.Constraint("Equal", 12, 20),
    Sketcher.Constraint("Equal", 19, 21),
    Sketcher.Constraint("Equal", 18, 22),
    Sketcher.Constraint("Equal", 21, 23),
    Sketcher.Constraint("Equal", 23, 25),
    Sketcher.Constraint("Equal", 22, 26),
    Sketcher.Constraint("Equal", 25, 27),
    Sketcher.Constraint("Equal", 20, 28),
    Sketcher.Constraint("Equal", 27, 29),
    Sketcher.Constraint("Equal", 26, 30),
    Sketcher.Constraint("Equal", 29, 31),
    Sketcher.Constraint("Equal", 31, 33),
    Sketcher.Constraint("Equal", 30, 34),
    Sketcher.Constraint("Equal", 33, 35),
    Sketcher.Constraint("Equal", 28, 36),
    Sketcher.Constraint("Equal", 35, 37),
    Sketcher.Constraint("Equal", 34, 38),
    Sketcher.Constraint("Equal", 37, 39),
    Sketcher.Constraint("Equal", 39, 41),
    Sketcher.Constraint("Equal", 38, 42),
    Sketcher.Constraint("Equal", 41, 43),
    Sketcher.Constraint("Equal", 36, 44),
    Sketcher.Constraint("Equal", 43, 45),
    Sketcher.Constraint("Equal", 42, 46),
    Sketcher.Constraint("Equal", 45, 47),
    Sketcher.Constraint("Symmetric", 1, 3, 9, 3, -1, 1),
    Sketcher.Constraint("Symmetric", 3, 3, 11, 3, -1, 1),
    Sketcher.Constraint("Symmetric", 5, 3, 13, 3, -1, 1),
    Sketcher.Constraint("Symmetric", 22, 3, 26, 3, -1, 1),
    Sketcher.Constraint("Symmetric", 17, 3, 41, 3, -1, 1),
    Sketcher.Constraint("Symmetric", 15, 3, 17, 3, -2),
    Sketcher.Constraint("Symmetric", 13, 3, 19, 3, -2),
    Sketcher.Constraint("Symmetric", 10, 3, 22, 3, -2),
    Sketcher.Constraint("Symmetric", 6, 3, 42, 3, -2),
    Sketcher.Constraint("Horizontal", 2, 3, 6, 3),
    Sketcher.Constraint("Horizontal", 7, 3, 25, 3),
    Sketcher.Constraint("Horizontal", 23, 3, 31, 3),
    Sketcher.Constraint("Radius", 1, 3.0),
    Sketcher.Constraint("Radius", 2, 18.0),
    Sketcher.Constraint("Radius", 4, 55.0),
    Sketcher.Constraint("DistanceY", -1, 1, 1, 3, 76.0),
    Sketcher.Constraint("DistanceX", 2, 3, -1, 1, 33.0),
    Sketcher.Constraint("DistanceY", -1, 1, 2, 3, 70.0),
    Sketcher.Constraint("DistanceX", 4, 3, -1, 1, 65.0),
    Sketcher.Constraint("DistanceX", 6, 3, -1, 1, 100.0),
])
pocket5 = body.newObject("PartDesign::Pocket", "Pocket004")
pocket5.Profile = sketch6
pocket5.Length = 20
pocket5.Reversed = True

doc.recompute()
